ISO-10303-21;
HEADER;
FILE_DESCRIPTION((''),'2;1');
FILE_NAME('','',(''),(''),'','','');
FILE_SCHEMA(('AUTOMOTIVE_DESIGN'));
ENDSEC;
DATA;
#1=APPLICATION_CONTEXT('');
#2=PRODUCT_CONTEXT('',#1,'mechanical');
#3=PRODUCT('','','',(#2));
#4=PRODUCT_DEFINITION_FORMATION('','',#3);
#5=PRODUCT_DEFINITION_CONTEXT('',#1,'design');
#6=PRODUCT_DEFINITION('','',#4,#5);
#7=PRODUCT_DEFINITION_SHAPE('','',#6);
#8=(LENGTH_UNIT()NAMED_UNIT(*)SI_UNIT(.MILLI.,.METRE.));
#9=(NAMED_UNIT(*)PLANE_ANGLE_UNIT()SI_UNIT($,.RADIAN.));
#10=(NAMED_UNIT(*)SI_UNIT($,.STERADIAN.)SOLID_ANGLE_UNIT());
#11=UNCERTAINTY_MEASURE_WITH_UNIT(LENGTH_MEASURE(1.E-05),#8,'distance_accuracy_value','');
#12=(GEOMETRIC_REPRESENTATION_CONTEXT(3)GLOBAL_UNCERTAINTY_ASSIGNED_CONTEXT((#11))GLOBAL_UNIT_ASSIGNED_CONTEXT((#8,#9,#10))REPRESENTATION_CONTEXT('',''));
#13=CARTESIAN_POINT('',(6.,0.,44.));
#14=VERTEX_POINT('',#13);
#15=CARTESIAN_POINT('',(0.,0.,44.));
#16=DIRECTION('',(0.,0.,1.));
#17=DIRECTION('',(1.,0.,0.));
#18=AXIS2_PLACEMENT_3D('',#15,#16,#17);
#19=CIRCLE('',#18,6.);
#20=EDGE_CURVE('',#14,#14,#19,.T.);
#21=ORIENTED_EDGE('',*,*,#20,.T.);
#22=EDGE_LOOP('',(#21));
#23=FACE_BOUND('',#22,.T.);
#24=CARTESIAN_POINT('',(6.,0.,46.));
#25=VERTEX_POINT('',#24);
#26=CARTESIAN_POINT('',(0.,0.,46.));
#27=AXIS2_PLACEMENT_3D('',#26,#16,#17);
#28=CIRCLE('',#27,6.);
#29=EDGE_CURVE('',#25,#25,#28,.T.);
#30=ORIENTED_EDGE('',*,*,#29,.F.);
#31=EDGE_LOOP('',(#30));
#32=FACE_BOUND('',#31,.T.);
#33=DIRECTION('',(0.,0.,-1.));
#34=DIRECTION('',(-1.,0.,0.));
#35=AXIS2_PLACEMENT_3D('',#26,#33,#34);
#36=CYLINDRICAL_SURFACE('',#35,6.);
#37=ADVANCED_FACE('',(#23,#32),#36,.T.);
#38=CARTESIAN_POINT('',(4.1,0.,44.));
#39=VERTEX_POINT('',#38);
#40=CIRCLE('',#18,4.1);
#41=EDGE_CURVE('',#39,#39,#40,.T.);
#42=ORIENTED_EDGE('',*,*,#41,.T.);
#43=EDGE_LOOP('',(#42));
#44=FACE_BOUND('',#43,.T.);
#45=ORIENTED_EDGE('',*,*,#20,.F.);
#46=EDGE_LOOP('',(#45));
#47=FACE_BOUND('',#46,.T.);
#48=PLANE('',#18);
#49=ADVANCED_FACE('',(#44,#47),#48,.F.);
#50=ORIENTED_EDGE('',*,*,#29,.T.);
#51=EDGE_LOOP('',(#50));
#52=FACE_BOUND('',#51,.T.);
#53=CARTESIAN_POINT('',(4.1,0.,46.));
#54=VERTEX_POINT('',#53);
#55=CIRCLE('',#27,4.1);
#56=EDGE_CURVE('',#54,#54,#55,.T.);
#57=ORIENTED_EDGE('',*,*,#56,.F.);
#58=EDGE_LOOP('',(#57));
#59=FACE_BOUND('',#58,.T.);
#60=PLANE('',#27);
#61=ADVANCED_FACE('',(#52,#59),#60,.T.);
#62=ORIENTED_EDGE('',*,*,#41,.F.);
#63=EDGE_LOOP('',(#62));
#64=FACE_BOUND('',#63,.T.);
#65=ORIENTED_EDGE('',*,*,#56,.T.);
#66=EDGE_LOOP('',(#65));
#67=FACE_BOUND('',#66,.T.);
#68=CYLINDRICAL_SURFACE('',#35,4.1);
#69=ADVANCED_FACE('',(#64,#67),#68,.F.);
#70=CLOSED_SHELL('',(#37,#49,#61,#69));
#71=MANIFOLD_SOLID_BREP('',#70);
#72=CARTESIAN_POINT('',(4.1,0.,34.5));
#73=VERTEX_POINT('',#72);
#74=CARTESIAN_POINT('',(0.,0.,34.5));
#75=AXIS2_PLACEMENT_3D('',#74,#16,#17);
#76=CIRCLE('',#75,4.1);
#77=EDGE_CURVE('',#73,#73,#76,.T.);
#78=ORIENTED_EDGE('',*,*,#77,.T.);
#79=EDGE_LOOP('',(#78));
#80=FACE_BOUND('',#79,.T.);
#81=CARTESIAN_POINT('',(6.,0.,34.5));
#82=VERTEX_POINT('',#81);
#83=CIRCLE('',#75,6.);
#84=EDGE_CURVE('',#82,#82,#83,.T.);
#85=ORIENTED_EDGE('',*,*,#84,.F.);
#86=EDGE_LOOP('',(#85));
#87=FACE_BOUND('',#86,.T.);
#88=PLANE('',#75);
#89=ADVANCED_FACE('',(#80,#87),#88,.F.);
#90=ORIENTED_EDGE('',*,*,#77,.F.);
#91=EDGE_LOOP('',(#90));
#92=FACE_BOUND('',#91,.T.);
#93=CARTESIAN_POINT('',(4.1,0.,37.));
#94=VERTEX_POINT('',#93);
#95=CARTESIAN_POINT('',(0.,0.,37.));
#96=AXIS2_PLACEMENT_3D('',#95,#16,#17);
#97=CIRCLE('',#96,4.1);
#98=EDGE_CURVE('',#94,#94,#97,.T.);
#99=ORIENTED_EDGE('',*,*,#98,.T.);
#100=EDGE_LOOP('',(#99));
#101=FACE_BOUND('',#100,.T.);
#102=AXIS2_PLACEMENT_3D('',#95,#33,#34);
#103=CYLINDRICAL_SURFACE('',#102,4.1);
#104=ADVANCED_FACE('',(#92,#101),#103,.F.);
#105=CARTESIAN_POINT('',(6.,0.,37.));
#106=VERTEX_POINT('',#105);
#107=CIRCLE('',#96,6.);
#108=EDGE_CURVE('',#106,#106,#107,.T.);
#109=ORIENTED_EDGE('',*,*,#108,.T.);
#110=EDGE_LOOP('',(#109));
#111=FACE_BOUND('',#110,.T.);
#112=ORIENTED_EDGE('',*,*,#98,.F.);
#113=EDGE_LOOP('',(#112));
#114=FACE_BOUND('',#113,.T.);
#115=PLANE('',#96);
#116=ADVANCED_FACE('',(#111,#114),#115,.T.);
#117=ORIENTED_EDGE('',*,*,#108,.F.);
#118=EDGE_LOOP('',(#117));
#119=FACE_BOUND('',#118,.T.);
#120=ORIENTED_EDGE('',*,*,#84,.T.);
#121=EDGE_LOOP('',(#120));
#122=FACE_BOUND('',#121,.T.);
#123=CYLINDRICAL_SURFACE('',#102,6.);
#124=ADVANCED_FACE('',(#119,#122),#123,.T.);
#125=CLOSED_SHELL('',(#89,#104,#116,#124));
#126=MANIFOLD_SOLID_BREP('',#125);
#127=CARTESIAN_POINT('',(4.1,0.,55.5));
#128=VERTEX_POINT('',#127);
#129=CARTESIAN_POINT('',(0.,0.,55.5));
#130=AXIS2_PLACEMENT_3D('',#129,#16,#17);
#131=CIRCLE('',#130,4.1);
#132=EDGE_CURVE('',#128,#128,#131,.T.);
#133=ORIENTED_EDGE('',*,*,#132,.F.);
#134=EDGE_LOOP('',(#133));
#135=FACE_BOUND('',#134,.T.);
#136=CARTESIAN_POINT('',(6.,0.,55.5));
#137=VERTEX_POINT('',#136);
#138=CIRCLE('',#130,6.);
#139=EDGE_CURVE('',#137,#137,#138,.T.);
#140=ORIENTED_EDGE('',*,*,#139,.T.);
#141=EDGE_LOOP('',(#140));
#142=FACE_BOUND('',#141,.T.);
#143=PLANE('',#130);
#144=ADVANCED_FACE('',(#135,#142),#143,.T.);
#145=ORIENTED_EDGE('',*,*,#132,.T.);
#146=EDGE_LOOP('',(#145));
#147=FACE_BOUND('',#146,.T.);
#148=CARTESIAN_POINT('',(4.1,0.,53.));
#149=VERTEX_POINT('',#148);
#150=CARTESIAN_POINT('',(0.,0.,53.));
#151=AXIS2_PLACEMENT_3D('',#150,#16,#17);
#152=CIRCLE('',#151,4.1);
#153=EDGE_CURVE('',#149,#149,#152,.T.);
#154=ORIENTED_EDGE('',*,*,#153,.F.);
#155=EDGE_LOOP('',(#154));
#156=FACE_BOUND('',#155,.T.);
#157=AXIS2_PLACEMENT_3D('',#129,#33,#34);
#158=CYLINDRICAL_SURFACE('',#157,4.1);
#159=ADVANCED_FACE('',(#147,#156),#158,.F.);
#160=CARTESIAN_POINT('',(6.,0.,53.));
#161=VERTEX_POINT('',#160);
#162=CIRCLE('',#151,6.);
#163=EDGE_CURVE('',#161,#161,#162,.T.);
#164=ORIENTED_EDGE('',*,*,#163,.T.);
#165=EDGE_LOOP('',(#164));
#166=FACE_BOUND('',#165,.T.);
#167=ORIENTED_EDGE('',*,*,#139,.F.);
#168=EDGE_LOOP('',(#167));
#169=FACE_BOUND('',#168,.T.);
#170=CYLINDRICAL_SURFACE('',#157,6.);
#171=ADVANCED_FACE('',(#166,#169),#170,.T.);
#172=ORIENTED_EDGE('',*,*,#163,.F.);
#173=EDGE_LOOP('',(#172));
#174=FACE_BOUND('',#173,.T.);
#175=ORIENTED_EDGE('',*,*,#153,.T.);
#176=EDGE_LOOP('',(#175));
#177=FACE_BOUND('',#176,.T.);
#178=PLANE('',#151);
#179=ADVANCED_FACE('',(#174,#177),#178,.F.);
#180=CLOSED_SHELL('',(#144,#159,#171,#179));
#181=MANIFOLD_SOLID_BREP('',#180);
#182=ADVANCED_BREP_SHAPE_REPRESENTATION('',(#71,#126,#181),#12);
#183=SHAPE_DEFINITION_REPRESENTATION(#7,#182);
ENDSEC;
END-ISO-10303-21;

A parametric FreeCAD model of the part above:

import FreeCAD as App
import Part
import Sketcher
Q = App.Units.Quantity

doc = App.newDocument("Part")
body = doc.addObject("PartDesign::Body", "Body")

# Sketch on XY plane
sketch1 = body.newObject("Sketcher::SketchObject", "Sketch")
sketch1.AttachmentSupport = (doc.getObject("XY_Plane"), [""])
sketch1.MapMode = "FlatFace"
sketch1.AttachmentOffset = App.Placement(App.Vector(0, 0, 34.5), App.Rotation())
sketch1.addGeometry([
    Part.Circle(App.Vector(0, 0, 0), App.Vector(0, 0, 1), 6),
    Part.Circle(App.Vector(0, 0, 0), App.Vector(0, 0, 1), 4.1),
], False)
sketch1.addConstraint([
    Sketcher.Constraint("Coincident", 0, 3, -1, 1),
    Sketcher.Constraint("Coincident", 1, 3, -1, 1),
    Sketcher.Constraint("Diameter", 0, Q("12 mm")),
    Sketcher.Constraint("Diameter", 1, Q("8.2 mm")),
])
pad1 = body.newObject("PartDesign::Pad", "Pad")
pad1.Profile = sketch1
pad1.Length = 2.5
body2 = doc.addObject("PartDesign::Body", "Body001")

# Sketch on XY plane
sketch2 = body2.newObject("Sketcher::SketchObject", "Sketch001")
sketch2.AttachmentSupport = (doc.getObject("XY_Plane001"), [""])
sketch2.MapMode = "FlatFace"
sketch2.AttachmentOffset = App.Placement(App.Vector(0, 0, 44), App.Rotation())
sketch2.addGeometry([
    Part.Circle(App.Vector(0, 0, 0), App.Vector(0, 0, 1), 6),
    Part.Circle(App.Vector(0, 0, 0), App.Vector(0, 0, 1), 4.1),
], False)
sketch2.addConstraint([
    Sketcher.Constraint("Coincident", 0, 3, -1, 1),
    Sketcher.Constraint("Coincident", 1, 3, -1, 1),
    Sketcher.Constraint("Diameter", 0, Q("12 mm")),
    Sketcher.Constraint("Diameter", 1, Q("8.2 mm")),
])
pad2 = body2.newObject("PartDesign::Pad", "Pad001")
pad2.Profile = sketch2
pad2.Length = 2
body3 = doc.addObject("PartDesign::Body", "Body002")

# Sketch on XY plane
sketch3 = body3.newObject("Sketcher::SketchObject", "Sketch002")
sketch3.AttachmentSupport = (doc.getObject("XY_Plane002"), [""])
sketch3.MapMode = "FlatFace"
sketch3.AttachmentOffset = App.Placement(App.Vector(0, 0, 53), App.Rotation())
sketch3.addGeometry([
    Part.Circle(App.Vector(0, 0, 0), App.Vector(0, 0, 1), 6),
    Part.Circle(App.Vector(0, 0, 0), App.Vector(0, 0, 1), 4.1),
], False)
sketch3.addConstraint([
    Sketcher.Constraint("Coincident", 0, 3, -1, 1),
    Sketcher.Constraint("Coincident", 1, 3, -1, 1),
    Sketcher.Constraint("Diameter", 0, Q("12 mm")),
    Sketcher.Constraint("Diameter", 1, Q("8.2 mm")),
])
pad3 = body3.newObject("PartDesign::Pad", "Pad002")
pad3.Profile = sketch3
pad3.Length = 2.5

doc.recompute()
